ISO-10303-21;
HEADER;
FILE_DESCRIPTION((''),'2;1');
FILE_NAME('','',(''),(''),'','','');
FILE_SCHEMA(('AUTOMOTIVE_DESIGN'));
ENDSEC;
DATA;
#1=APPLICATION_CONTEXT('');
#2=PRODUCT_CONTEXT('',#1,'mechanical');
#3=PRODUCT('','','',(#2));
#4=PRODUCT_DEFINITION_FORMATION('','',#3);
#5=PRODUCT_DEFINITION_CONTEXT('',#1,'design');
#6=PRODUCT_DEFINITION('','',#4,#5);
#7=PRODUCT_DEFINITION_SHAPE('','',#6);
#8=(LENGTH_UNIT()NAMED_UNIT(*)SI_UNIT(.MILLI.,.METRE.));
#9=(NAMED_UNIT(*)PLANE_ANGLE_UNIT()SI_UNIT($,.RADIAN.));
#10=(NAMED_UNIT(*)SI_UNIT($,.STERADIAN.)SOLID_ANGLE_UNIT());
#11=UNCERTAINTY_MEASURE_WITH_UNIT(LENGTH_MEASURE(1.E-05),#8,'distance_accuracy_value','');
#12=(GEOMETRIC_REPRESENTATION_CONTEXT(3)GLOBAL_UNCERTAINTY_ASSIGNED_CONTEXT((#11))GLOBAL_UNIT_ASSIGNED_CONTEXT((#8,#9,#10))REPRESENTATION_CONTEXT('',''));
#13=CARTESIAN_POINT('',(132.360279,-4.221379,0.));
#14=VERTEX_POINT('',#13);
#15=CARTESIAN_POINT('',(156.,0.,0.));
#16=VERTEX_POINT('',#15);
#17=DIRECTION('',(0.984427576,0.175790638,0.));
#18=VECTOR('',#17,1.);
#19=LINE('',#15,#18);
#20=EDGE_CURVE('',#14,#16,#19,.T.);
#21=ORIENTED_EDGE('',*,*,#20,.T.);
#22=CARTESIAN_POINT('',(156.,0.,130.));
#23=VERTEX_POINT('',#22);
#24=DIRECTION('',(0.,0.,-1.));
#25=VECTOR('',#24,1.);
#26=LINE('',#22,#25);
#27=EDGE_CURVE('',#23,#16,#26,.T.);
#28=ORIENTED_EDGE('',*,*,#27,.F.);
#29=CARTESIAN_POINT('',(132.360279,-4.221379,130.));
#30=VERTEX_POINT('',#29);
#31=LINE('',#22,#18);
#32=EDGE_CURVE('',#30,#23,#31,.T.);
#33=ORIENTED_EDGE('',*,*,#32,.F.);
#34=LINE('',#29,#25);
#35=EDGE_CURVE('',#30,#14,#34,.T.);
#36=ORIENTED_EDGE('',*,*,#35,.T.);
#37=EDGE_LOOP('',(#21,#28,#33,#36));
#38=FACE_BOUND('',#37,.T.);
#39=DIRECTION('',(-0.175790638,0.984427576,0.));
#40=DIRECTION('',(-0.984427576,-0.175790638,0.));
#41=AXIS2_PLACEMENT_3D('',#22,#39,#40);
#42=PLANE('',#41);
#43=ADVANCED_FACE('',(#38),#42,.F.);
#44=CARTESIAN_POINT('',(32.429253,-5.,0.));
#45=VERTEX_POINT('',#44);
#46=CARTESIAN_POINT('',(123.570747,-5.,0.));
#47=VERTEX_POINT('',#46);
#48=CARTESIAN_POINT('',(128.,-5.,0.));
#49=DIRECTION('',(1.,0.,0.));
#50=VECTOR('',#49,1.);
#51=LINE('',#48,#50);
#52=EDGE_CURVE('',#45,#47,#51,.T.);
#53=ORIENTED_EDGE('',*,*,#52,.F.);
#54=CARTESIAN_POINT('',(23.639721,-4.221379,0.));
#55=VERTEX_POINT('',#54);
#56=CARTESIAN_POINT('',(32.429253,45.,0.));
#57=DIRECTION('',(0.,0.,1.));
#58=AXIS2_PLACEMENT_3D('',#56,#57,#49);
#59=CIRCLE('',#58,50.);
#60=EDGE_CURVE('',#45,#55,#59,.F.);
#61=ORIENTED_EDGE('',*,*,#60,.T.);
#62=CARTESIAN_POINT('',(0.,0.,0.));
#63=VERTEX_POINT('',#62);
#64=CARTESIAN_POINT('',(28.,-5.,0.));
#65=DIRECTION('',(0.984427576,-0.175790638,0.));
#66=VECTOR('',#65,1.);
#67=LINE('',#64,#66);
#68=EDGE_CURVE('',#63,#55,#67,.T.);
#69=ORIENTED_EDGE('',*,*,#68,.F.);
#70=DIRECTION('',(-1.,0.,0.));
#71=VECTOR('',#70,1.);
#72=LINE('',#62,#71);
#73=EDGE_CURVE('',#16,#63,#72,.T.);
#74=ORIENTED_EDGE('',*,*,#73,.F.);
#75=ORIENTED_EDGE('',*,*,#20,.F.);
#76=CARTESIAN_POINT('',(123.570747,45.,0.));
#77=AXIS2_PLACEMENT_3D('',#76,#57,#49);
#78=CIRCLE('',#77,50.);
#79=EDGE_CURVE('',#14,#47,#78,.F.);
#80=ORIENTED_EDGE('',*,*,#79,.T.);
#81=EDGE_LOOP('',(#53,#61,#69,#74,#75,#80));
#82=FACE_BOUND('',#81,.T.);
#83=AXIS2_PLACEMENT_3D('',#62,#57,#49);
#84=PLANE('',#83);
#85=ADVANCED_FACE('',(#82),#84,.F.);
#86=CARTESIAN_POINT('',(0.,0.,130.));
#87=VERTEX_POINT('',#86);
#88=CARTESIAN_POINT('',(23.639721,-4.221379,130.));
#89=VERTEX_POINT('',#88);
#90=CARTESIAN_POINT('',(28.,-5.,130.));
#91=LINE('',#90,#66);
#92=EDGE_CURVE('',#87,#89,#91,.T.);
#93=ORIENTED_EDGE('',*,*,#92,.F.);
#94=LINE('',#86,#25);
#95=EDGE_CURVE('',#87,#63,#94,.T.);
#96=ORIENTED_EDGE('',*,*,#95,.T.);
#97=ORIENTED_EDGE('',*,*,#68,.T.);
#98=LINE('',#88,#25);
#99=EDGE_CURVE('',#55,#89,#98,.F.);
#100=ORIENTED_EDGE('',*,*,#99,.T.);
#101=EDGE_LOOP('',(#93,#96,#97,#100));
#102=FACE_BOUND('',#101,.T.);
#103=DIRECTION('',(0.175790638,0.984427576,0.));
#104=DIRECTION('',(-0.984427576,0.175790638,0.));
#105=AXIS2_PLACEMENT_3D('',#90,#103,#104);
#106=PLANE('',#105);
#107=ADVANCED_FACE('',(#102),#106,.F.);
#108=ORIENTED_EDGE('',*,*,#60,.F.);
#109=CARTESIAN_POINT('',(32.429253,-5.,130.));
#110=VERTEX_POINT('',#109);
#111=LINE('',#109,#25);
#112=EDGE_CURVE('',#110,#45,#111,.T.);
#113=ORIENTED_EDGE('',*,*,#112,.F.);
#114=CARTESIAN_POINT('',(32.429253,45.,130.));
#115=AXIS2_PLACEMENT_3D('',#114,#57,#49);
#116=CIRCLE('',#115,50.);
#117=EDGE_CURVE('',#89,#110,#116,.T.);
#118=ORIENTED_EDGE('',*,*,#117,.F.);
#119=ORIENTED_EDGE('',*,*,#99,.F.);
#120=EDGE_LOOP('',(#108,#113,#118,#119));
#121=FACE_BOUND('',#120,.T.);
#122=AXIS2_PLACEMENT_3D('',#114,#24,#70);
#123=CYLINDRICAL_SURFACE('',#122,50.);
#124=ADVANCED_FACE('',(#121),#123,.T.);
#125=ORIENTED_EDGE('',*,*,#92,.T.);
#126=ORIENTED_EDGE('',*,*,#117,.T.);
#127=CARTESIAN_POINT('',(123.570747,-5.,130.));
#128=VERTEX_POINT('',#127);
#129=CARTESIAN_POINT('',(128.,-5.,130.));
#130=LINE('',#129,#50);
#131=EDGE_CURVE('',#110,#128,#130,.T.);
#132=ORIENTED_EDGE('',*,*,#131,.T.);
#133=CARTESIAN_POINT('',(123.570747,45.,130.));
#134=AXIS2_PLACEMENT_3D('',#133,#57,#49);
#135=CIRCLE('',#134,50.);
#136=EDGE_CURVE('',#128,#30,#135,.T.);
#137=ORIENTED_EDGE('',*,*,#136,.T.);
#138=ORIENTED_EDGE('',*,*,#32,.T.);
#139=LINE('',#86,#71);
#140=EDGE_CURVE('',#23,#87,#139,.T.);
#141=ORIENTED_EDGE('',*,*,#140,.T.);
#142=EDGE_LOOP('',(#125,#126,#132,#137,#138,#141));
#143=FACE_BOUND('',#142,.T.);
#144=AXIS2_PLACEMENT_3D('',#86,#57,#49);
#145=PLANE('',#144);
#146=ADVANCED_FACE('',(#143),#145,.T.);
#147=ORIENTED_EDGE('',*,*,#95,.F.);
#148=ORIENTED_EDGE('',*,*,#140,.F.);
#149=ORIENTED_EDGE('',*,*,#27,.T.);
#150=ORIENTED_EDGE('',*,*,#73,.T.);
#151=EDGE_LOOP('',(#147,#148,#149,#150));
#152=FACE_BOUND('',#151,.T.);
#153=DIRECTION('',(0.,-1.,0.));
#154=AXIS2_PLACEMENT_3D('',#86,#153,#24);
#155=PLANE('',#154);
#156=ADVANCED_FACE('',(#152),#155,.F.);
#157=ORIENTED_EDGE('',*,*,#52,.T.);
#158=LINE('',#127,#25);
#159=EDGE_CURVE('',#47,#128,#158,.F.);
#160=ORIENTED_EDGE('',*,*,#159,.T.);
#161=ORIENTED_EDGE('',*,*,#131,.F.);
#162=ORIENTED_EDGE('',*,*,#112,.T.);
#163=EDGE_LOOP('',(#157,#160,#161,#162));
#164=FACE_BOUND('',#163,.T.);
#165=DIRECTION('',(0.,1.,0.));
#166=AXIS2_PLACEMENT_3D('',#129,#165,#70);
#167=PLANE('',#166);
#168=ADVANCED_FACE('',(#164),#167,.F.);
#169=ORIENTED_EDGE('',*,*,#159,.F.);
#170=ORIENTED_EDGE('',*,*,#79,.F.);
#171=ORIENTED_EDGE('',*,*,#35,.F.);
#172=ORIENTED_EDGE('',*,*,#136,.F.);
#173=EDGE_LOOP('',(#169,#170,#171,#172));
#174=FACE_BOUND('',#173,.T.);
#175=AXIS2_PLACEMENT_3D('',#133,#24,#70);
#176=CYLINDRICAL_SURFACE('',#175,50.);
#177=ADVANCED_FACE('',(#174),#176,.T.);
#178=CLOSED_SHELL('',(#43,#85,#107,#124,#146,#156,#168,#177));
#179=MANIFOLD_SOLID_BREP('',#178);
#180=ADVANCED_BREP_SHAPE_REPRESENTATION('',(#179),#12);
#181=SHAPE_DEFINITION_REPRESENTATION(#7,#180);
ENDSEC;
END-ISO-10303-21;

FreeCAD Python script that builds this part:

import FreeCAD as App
import Part
import Sketcher

V = App.Vector
Q = App.Units.Quantity


def edges_at(feature, points):
    """Names of the edges that pass closest to the given points."""
    edges = feature.Shape.Edges
    near = lambda p: min(range(len(edges)), key=lambda i: edges[i].distToShape(Part.Vertex(*p))[0])
    return sorted({f"Edge{near(p) + 1}" for p in points})


def add_polygon(sketch, points):
    """Adds a closed chain of lines whose ends are joined by coincident constraints."""
    first, n = sketch.GeometryCount, len(points)
    for a, b in zip(points, points[1:] + points[:1]):
        sketch.addGeometry(Part.LineSegment(App.Vector(*a, 0), App.Vector(*b, 0)), False)
    for i in range(n):
        sketch.addConstraint(Sketcher.Constraint("Coincident", first + i, 2, first + (i + 1) % n, 1))

doc = App.newDocument("Part")
body = doc.addObject("PartDesign::Body", "Body")

sketch1 = doc.addObject("Sketcher::SketchObject", "Sketch")
body.addObject(sketch1)
sketch1.AttachmentSupport = (doc.XY_Plane, [""])
sketch1.MapMode = "FlatFace"
add_polygon(sketch1, [(156, 0), (0, 0), (28, -5), (128, -5)])
sketch1.addConstraint([
    Sketcher.Constraint("Horizontal", 0),
    Sketcher.Constraint("Horizontal", 2),
    Sketcher.Constraint("Coincident", 0, 2, -1, 1),
    Sketcher.Constraint("Equal", 1, 3),
    Sketcher.Constraint("DistanceX", 0, 2, 0, 1, Q("156 mm")),
    Sketcher.Constraint("DistanceX", 2, 1, 2, 2, Q("100 mm")),
    Sketcher.Constraint("DistanceY", 1, 2, -1, 1, Q("5 mm")),
])
pad1 = doc.addObject("PartDesign::Pad", "Pad")
body.addObject(pad1)
pad1.Profile = sketch1
pad1.Length = 130
doc.recompute()

fillet = doc.addObject("PartDesign::Fillet", "Fillet")
body.addObject(fillet)
fillet.Base = (pad1, edges_at(pad1, [(128, -5, 65), (28, -5, 65)]))
fillet.Radius = 50

doc.recompute()
